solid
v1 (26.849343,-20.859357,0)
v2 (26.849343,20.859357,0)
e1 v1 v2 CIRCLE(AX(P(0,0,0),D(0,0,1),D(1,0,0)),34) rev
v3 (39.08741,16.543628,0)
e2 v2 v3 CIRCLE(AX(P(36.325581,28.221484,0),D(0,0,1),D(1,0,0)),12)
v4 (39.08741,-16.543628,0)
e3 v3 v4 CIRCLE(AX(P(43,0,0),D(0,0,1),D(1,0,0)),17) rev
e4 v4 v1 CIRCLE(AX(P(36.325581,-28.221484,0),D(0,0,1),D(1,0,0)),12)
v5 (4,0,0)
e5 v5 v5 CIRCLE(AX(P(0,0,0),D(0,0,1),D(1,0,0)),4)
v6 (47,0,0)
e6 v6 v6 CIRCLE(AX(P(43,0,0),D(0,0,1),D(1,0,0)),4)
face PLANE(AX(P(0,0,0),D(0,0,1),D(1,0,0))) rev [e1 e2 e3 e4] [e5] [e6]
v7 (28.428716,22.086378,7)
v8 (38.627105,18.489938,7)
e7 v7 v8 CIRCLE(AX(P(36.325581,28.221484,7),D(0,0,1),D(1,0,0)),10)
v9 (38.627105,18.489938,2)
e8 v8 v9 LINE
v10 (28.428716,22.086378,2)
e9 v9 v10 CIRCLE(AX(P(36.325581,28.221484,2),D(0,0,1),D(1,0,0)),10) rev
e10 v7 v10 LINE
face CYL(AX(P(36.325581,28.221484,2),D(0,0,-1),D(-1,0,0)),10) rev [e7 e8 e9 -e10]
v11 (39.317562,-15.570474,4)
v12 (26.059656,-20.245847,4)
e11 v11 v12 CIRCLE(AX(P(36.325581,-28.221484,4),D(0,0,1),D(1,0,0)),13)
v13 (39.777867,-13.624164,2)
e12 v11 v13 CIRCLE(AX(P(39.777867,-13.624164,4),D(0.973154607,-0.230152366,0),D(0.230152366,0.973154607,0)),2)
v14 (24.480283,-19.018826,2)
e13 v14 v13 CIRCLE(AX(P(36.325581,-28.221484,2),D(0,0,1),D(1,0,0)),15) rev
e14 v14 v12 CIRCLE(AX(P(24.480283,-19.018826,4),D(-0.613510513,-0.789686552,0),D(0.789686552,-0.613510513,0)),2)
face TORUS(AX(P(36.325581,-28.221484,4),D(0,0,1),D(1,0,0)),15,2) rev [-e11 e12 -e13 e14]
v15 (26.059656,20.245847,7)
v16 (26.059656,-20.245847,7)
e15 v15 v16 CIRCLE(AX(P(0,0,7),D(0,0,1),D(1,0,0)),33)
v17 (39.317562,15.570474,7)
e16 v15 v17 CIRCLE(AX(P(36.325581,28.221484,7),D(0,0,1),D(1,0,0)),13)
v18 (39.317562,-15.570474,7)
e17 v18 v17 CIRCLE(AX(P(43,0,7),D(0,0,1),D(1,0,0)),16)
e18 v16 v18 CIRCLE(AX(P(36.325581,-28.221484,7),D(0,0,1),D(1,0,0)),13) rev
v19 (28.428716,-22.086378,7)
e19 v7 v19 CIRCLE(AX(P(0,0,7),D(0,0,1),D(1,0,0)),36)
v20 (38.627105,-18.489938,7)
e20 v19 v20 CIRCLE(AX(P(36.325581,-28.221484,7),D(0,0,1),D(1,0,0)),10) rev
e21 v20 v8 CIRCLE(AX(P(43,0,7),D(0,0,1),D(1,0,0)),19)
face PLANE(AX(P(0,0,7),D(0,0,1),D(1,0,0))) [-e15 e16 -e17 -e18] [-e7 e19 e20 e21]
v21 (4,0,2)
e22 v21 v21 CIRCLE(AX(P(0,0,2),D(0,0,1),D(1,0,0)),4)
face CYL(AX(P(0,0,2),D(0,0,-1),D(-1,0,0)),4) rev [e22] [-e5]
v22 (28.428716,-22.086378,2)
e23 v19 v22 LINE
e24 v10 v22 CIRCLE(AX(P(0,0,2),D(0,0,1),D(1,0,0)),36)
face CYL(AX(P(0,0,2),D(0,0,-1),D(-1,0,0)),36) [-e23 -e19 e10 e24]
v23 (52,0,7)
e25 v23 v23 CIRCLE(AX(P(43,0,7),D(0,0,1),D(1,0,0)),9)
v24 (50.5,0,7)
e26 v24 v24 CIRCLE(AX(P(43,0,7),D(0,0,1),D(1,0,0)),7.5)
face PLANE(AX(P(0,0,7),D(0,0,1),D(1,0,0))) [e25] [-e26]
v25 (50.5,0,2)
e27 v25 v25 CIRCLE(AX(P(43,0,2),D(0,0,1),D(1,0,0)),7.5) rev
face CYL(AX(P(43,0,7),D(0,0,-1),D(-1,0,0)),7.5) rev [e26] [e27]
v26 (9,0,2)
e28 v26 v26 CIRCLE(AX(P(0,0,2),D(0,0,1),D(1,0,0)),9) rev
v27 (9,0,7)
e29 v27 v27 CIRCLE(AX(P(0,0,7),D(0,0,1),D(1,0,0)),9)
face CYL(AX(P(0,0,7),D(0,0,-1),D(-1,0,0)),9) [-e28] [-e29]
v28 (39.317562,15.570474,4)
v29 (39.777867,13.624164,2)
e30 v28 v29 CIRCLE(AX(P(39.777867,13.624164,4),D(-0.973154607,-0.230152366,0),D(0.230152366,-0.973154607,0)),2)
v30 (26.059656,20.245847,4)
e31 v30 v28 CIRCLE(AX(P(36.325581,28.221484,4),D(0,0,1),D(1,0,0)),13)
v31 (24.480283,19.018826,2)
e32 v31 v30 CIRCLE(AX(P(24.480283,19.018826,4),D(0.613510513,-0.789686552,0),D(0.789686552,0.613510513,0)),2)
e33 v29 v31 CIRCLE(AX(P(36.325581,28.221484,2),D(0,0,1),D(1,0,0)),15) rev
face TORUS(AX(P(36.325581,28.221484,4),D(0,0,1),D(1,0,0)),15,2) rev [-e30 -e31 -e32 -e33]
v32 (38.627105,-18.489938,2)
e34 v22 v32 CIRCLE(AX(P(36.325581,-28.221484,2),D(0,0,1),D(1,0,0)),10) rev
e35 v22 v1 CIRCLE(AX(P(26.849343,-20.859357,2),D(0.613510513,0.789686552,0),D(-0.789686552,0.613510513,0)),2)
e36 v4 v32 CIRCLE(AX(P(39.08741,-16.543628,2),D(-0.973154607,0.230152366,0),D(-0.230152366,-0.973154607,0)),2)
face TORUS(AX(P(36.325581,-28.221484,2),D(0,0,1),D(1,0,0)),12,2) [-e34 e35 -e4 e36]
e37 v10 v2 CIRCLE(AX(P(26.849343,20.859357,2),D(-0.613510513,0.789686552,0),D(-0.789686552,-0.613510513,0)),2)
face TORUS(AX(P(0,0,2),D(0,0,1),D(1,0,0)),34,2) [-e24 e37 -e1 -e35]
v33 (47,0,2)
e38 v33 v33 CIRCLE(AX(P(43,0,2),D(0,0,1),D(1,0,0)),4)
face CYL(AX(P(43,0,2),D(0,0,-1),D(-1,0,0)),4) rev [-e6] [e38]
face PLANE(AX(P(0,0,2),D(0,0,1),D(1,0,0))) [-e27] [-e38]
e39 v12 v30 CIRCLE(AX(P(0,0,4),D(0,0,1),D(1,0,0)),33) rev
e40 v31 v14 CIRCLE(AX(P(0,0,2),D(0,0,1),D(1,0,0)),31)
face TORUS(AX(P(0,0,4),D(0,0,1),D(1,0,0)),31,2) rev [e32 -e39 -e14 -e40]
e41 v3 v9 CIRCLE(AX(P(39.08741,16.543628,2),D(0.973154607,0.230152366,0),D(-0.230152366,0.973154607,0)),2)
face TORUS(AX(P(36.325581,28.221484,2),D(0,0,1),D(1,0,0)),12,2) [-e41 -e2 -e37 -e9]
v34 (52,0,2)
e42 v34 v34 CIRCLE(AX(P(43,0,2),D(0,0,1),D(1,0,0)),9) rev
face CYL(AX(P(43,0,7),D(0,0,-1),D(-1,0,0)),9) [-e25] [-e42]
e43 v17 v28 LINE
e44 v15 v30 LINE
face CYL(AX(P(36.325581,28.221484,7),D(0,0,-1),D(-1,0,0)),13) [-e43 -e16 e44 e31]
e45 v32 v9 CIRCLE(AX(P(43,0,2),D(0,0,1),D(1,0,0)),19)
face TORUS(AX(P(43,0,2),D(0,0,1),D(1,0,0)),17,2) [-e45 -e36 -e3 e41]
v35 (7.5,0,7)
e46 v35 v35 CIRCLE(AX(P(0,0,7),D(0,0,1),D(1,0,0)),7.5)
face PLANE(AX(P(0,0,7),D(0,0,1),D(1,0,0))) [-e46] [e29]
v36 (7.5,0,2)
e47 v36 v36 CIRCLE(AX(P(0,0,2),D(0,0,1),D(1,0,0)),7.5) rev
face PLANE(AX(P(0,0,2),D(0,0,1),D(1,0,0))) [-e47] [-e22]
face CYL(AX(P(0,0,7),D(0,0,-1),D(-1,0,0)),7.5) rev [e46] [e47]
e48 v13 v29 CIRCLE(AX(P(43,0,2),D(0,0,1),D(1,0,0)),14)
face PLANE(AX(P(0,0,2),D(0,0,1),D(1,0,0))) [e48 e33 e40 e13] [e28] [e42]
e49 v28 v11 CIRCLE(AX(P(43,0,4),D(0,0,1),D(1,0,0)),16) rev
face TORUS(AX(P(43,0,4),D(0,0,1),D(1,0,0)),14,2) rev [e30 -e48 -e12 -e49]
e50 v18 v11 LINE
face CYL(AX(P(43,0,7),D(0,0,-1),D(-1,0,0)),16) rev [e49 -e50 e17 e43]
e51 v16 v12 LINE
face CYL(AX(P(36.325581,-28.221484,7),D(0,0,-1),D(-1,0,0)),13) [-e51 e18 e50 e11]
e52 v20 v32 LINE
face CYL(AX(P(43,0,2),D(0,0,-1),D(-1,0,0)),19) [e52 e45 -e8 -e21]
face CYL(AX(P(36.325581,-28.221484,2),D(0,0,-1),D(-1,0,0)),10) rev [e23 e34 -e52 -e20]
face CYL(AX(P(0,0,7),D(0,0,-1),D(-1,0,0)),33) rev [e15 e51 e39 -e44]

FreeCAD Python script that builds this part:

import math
import FreeCAD as App
import Part
import Sketcher

V = App.Vector
Q = App.Units.Quantity


def edges_at(feature, points):
    """Names of the edges that pass closest to the given points."""
    edges = feature.Shape.Edges
    near = lambda p: min(range(len(edges)), key=lambda i: edges[i].distToShape(Part.Vertex(*p))[0])
    return sorted({f"Edge{near(p) + 1}" for p in points})

doc = App.newDocument("Part")
body = doc.addObject("PartDesign::Body", "Body")

sketch1 = doc.addObject("Sketcher::SketchObject", "Sketch")
body.addObject(sketch1)
sketch1.AttachmentSupport = (doc.XY_Plane, [""])
sketch1.MapMode = "FlatFace"
sketch1.addGeometry(Part.ArcOfCircle(Part.Circle(V(36.3, 28.2, 0), V(0, 0, 1), 10), math.radians(-142), math.radians(-77)), False)
sketch1.addGeometry(Part.ArcOfCircle(Part.Circle(V(0, 0, 0), V(0, 0, 1), 36), math.radians(38), math.radians(322)), False)
sketch1.addGeometry(Part.ArcOfCircle(Part.Circle(V(36.3, -28.2, 0), V(0, 0, 1), 10), math.radians(77), math.radians(142)), False)
sketch1.addGeometry(Part.ArcOfCircle(Part.Circle(V(43, 0, 0), V(0, 0, 1), 19), math.radians(-103), math.radians(103)), False)
sketch1.addGeometry(Part.Circle(V(0, 0, 0), V(0, 0, 1), 4), False)
sketch1.addGeometry(Part.Circle(V(43, 0, 0), V(0, 0, 1), 4), False)
sketch1.addConstraint(Sketcher.Constraint("Tangent", 0, 1, 1, 1))
sketch1.addConstraint(Sketcher.Constraint("Tangent", 1, 2, 2, 2))
sketch1.addConstraint(Sketcher.Constraint("Tangent", 2, 1, 3, 1))
sketch1.addConstraint(Sketcher.Constraint("Tangent", 3, 2, 0, 2))
sketch1.addConstraint(Sketcher.Constraint("Coincident", 1, 3, -1, 1))
sketch1.addConstraint(Sketcher.Constraint("Coincident", 4, 3, -1, 1))
sketch1.addConstraint(Sketcher.Constraint("Coincident", 5, 3, 3, 3))
sketch1.addConstraint(Sketcher.Constraint("Equal", 0, 2))
sketch1.addConstraint(Sketcher.Constraint("Equal", 4, 5))
sketch1.addConstraint(Sketcher.Constraint("PointOnObject", 3, 3, -1))
sketch1.addConstraint(Sketcher.Constraint("Diameter", 4, Q("8 mm")))
sketch1.addConstraint(Sketcher.Constraint("Radius", 0, Q("10 mm")))
sketch1.addConstraint(Sketcher.Constraint("Radius", 1, Q("36 mm")))
sketch1.addConstraint(Sketcher.Constraint("Radius", 3, Q("19 mm")))
sketch1.addConstraint(Sketcher.Constraint("DistanceX", -1, 1, 3, 3, Q("43 mm")))
pad1 = doc.addObject("PartDesign::Pad", "Pad")
body.addObject(pad1)
pad1.Profile = sketch1
pad1.Length = 2

sketch2 = doc.addObject("Sketcher::SketchObject", "Sketch001")
body.addObject(sketch2)
sketch2.AttachmentSupport = (doc.XY_Plane, [""])
sketch2.MapMode = "FlatFace"
sketch2.addGeometry(Part.Circle(V(0, 0, 0), V(0, 0, 1), 9), False)
sketch2.addGeometry(Part.Circle(V(0, 0, 0), V(0, 0, 1), 8), False)
sketch2.addGeometry(Part.Circle(V(43, 0, 0), V(0, 0, 1), 9), False)
sketch2.addGeometry(Part.Circle(V(43, 0, 0), V(0, 0, 1), 8), False)
sketch2.addConstraint(Sketcher.Constraint("Coincident", 0, 3, -1, 1))
sketch2.addConstraint(Sketcher.Constraint("Coincident", 1, 3, -1, 1))
sketch2.addConstraint(Sketcher.Constraint("Coincident", 3, 3, 2, 3))
sketch2.addConstraint(Sketcher.Constraint("Equal", 0, 2))
sketch2.addConstraint(Sketcher.Constraint("Equal", 1, 3))
sketch2.addConstraint(Sketcher.Constraint("PointOnObject", 2, 3, -1))
sketch2.addConstraint(Sketcher.Constraint("Diameter", 0, Q("18 mm")))
sketch2.addConstraint(Sketcher.Constraint("Diameter", 1, Q("15 mm")))
sketch2.addConstraint(Sketcher.Constraint("DistanceX", -1, 1, 2, 3, Q("43 mm")))
pad2 = doc.addObject("PartDesign::Pad", "Pad001")
body.addObject(pad2)
pad2.Profile = sketch2
pad2.Length = 7

sketch3 = doc.addObject("Sketcher::SketchObject", "Sketch002")
body.addObject(sketch3)
sketch3.AttachmentSupport = (doc.XY_Plane, [""])
sketch3.MapMode = "FlatFace"
sketch3.addGeometry(Part.ArcOfCircle(Part.Circle(V(36, 28, 0), V(0, 0, 1), 10), math.radians(-142), math.radians(-77)), False)
sketch3.addGeometry(Part.ArcOfCircle(Part.Circle(V(0, 0, 0), V(0, 0, 1), 36), math.radians(38), math.radians(322)), False)
sketch3.addGeometry(Part.ArcOfCircle(Part.Circle(V(36, -28, 0), V(0, 0, 1), 10), math.radians(77), math.radians(142)), False)
sketch3.addGeometry(Part.ArcOfCircle(Part.Circle(V(43, 0, 0), V(0, 0, 1), 19), math.radians(-103), math.radians(103)), False)
sketch3.addGeometry(Part.ArcOfCircle(Part.Circle(V(36, 28, 0), V(0, 0, 1), 13), math.radians(-142), math.radians(-77)), False)
sketch3.addGeometry(Part.ArcOfCircle(Part.Circle(V(43, 0, 0), V(0, 0, 1), 16), math.radians(-103), math.radians(103)), False)
sketch3.addGeometry(Part.ArcOfCircle(Part.Circle(V(36, -28, 0), V(0, 0, 1), 13), math.radians(77), math.radians(142)), False)
sketch3.addGeometry(Part.ArcOfCircle(Part.Circle(V(0, 0, 0), V(0, 0, 1), 33), math.radians(38), math.radians(322)), False)
sketch3.addConstraint(Sketcher.Constraint("Tangent", 0, 1, 1, 1))
sketch3.addConstraint(Sketcher.Constraint("Tangent", 1, 2, 2, 2))
sketch3.addConstraint(Sketcher.Constraint("Tangent", 2, 1, 3, 1))
sketch3.addConstraint(Sketcher.Constraint("Tangent", 3, 2, 0, 2))
sketch3.addConstraint(Sketcher.Constraint("Tangent", 4, 2, 5, 2))
sketch3.addConstraint(Sketcher.Constraint("Tangent", 5, 1, 6, 1))
sketch3.addConstraint(Sketcher.Constraint("Tangent", 6, 2, 7, 2))
sketch3.addConstraint(Sketcher.Constraint("Tangent", 7, 1, 4, 1))
sketch3.addConstraint(Sketcher.Constraint("Coincident", 1, 3, -1, 1))
sketch3.addConstraint(Sketcher.Constraint("Coincident", 7, 3, -1, 1))
sketch3.addConstraint(Sketcher.Constraint("Coincident", 4, 3, 0, 3))
sketch3.addConstraint(Sketcher.Constraint("Coincident", 5, 3, 3, 3))
sketch3.addConstraint(Sketcher.Constraint("Equal", 0, 2))
sketch3.addConstraint(Sketcher.Constraint("Equal", 4, 6))
sketch3.addConstraint(Sketcher.Constraint("PointOnObject", 3, 3, -1))
sketch3.addConstraint(Sketcher.Constraint("Radius", 0, Q("10 mm")))
sketch3.addConstraint(Sketcher.Constraint("Radius", 1, Q("36 mm")))
sketch3.addConstraint(Sketcher.Constraint("Radius", 3, Q("19 mm")))
sketch3.addConstraint(Sketcher.Constraint("Radius", 4, Q("13 mm")))
sketch3.addConstraint(Sketcher.Constraint("DistanceX", -1, 1, 3, 3, Q("43 mm")))
pad3 = doc.addObject("PartDesign::Pad", "Pad002")
body.addObject(pad3)
pad3.Profile = sketch3
pad3.Length = 7
doc.recompute()

fillet = doc.addObject("PartDesign::Fillet", "Fillet")
body.addObject(fillet)
fillet.Base = (pad3, edges_at(pad3, [
    (-36, 0, 0),
    (33, 18.791, 0),
    (32.002, 15.961, 2),
    (-33, 0, 2),
    (59, 0, 2),
    (32.002, -15.961, 2),
    (62, 0, 0),
    (33, -18.791, 0),
]))
fillet.Radius = 2

doc.recompute()
